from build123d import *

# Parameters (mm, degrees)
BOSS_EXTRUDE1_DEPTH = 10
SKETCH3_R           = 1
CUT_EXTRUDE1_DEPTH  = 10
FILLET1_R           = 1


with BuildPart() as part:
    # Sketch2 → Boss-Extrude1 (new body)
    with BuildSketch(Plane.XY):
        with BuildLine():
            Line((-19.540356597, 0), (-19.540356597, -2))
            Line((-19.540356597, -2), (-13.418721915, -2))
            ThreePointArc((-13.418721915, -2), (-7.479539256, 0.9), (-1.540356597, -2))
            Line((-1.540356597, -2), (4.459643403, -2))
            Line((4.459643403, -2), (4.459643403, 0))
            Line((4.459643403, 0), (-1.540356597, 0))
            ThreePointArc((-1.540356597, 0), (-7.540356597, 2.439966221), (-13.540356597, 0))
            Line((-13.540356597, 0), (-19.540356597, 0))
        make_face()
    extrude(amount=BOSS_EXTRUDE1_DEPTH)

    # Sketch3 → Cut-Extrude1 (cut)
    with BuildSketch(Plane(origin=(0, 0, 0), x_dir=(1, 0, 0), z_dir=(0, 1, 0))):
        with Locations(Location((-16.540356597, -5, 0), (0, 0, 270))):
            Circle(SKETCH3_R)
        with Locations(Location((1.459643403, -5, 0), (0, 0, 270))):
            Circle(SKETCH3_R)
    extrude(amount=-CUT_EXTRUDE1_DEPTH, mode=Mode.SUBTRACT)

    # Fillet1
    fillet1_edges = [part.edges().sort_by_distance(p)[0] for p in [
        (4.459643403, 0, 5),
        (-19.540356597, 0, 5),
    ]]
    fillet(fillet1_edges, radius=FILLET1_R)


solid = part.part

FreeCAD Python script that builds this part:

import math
import FreeCAD as App
import Part
import Sketcher
Q = App.Units.Quantity


def edges_at(feature, points):
    """Names of the edges that pass closest to the given points."""
    edges = feature.Shape.Edges
    near = lambda p: min(range(len(edges)), key=lambda i: edges[i].distToShape(Part.Vertex(*p))[0])
    return sorted({f"Edge{near(p) + 1}" for p in points})

doc = App.newDocument("Part")
params = doc.addObject("Spreadsheet::Sheet", "Params")
for row, (alias, value) in enumerate([
    ("sketch1_width", "6 mm"),
    ("sketch1_height", "2 mm"),
    ("pad1_length", "10 mm"),
    ("sketch2_diameter", "2 mm"),
    ("pocket1_length", "10 mm"),
    ("fillet_radius", "1 mm"),
], start=1):
    params.set(f"A{row}", alias)
    params.set(f"B{row}", "=" + value)
    params.setAlias(f"B{row}", alias)

body = doc.addObject("PartDesign::Body", "Body")

# Sketch on XY plane
sketch1 = body.newObject("Sketcher::SketchObject", "Sketch")
sketch1.AttachmentSupport = (doc.getObject("XY_Plane"), [""])
sketch1.MapMode = "FlatFace"
sketch1.addGeometry([
    Part.LineSegment(App.Vector(-19.5, 0, 0), App.Vector(-19.5, -2, 0)),  # 0
    Part.LineSegment(App.Vector(-19.5, -2, 0), App.Vector(-13.4, -2, 0)),  # 1
    Part.ArcOfCircle(Part.Circle(App.Vector(-7.5, -6.6, 0), App.Vector(0, 0, 1), 7.5), math.radians(38), math.radians(142)),  # 2
    Part.LineSegment(App.Vector(-1.5, -2, 0), App.Vector(4.5, -2, 0)),  # 3
    Part.LineSegment(App.Vector(4.5, -2, 0), App.Vector(4.5, 0, 0)),  # 4
    Part.LineSegment(App.Vector(4.5, 0, 0), App.Vector(-1.5, 0, 0)),  # 5
    Part.ArcOfCircle(Part.Circle(App.Vector(-7.5, -6.2, 0), App.Vector(0, 0, 1), 8.6), math.radians(46), math.radians(134)),  # 6
    Part.LineSegment(App.Vector(-13.5, 0, 0), App.Vector(-19.5, 0, 0)),  # 7
], False)
sketch1.addConstraint([
    Sketcher.Constraint("Coincident", 0, 2, 1, 1),
    Sketcher.Constraint("Coincident", 1, 2, 2, 2),
    Sketcher.Constraint("Coincident", 2, 1, 3, 1),
    Sketcher.Constraint("Coincident", 3, 2, 4, 1),
    Sketcher.Constraint("Coincident", 4, 2, 5, 1),
    Sketcher.Constraint("Coincident", 5, 2, 6, 1),
    Sketcher.Constraint("Coincident", 6, 2, 7, 1),
    Sketcher.Constraint("Coincident", 7, 2, 0, 1),
    Sketcher.Constraint("Vertical", 0),
    Sketcher.Constraint("Horizontal", 1),
    Sketcher.Constraint("Horizontal", 3),
    Sketcher.Constraint("Vertical", 4),
    Sketcher.Constraint("Horizontal", 5),
    Sketcher.Constraint("Horizontal", 7),
    Sketcher.Constraint("PointOnObject", 4, 2, -1),
    Sketcher.Constraint("PointOnObject", 6, 2, -1),
    Sketcher.Constraint("Horizontal", 1, 2, 2, 1),
    Sketcher.Constraint("Vertical", 2, 1, 5, 2),
    Sketcher.Constraint("Equal", 5, 7),
    Sketcher.Constraint("DistanceX", 3, 1, 3, 2, Q("6 mm")),
    Sketcher.Constraint("DistanceY", 0, 2, 0, 1, Q("2 mm")),
    Sketcher.Constraint("DistanceX", 0, 2, 6, 3, Q("12 mm")),
    Sketcher.Constraint("Radius", 2, Q("7.531705 mm")),
    Sketcher.Constraint("Radius", 6, Q("8.597134 mm")),
    Sketcher.Constraint("DistanceX", 1, 1, 1, 2, Q("6.121635 mm")),
    Sketcher.Constraint("DistanceX", 2, 3, -1, 1, Q("7.479539 mm")),
])
sketch1.setExpression("Constraints[19]", "Params.sketch1_width")
sketch1.setExpression("Constraints[20]", "Params.sketch1_height")
pad1 = body.newObject("PartDesign::Pad", "Pad")
pad1.Profile = sketch1
pad1.setExpression("Length", "Params.pad1_length")

# Sketch on XZ plane
sketch2 = body.newObject("Sketcher::SketchObject", "Sketch001")
sketch2.AttachmentSupport = (doc.getObject("XZ_Plane"), [""])
sketch2.MapMode = "FlatFace"
sketch2.addGeometry([
    Part.Circle(App.Vector(-16.5, 5, 0), App.Vector(0, 0, 1), 1),
    Part.Circle(App.Vector(1.5, 5, 0), App.Vector(0, 0, 1), 1),
], False)
sketch2.addConstraint([
    Sketcher.Constraint("Equal", 0, 1),
    Sketcher.Constraint("Horizontal", 0, 3, 1, 3),
    Sketcher.Constraint("Diameter", 0, Q("2 mm")),
    Sketcher.Constraint("DistanceY", -1, 1, 0, 3, Q("5 mm")),
    Sketcher.Constraint("DistanceX", 0, 3, 1, 3, Q("18 mm")),
    Sketcher.Constraint("DistanceX", 0, 3, -1, 1, Q("16.540357 mm")),
])
sketch2.setExpression("Constraints[2]", "Params.sketch2_diameter")
pocket1 = body.newObject("PartDesign::Pocket", "Pocket")
pocket1.Profile = sketch2
pocket1.setExpression("Length", "Params.pocket1_length")
pocket1.Reversed = True
doc.recompute()

fillet = body.newObject("PartDesign::Fillet", "Fillet")
fillet.Base = (pocket1, edges_at(pocket1, [(4.46, 0, 5), (-19.54, 0, 5)]))
fillet.setExpression("Radius", "Params.fillet_radius")

doc.recompute()
